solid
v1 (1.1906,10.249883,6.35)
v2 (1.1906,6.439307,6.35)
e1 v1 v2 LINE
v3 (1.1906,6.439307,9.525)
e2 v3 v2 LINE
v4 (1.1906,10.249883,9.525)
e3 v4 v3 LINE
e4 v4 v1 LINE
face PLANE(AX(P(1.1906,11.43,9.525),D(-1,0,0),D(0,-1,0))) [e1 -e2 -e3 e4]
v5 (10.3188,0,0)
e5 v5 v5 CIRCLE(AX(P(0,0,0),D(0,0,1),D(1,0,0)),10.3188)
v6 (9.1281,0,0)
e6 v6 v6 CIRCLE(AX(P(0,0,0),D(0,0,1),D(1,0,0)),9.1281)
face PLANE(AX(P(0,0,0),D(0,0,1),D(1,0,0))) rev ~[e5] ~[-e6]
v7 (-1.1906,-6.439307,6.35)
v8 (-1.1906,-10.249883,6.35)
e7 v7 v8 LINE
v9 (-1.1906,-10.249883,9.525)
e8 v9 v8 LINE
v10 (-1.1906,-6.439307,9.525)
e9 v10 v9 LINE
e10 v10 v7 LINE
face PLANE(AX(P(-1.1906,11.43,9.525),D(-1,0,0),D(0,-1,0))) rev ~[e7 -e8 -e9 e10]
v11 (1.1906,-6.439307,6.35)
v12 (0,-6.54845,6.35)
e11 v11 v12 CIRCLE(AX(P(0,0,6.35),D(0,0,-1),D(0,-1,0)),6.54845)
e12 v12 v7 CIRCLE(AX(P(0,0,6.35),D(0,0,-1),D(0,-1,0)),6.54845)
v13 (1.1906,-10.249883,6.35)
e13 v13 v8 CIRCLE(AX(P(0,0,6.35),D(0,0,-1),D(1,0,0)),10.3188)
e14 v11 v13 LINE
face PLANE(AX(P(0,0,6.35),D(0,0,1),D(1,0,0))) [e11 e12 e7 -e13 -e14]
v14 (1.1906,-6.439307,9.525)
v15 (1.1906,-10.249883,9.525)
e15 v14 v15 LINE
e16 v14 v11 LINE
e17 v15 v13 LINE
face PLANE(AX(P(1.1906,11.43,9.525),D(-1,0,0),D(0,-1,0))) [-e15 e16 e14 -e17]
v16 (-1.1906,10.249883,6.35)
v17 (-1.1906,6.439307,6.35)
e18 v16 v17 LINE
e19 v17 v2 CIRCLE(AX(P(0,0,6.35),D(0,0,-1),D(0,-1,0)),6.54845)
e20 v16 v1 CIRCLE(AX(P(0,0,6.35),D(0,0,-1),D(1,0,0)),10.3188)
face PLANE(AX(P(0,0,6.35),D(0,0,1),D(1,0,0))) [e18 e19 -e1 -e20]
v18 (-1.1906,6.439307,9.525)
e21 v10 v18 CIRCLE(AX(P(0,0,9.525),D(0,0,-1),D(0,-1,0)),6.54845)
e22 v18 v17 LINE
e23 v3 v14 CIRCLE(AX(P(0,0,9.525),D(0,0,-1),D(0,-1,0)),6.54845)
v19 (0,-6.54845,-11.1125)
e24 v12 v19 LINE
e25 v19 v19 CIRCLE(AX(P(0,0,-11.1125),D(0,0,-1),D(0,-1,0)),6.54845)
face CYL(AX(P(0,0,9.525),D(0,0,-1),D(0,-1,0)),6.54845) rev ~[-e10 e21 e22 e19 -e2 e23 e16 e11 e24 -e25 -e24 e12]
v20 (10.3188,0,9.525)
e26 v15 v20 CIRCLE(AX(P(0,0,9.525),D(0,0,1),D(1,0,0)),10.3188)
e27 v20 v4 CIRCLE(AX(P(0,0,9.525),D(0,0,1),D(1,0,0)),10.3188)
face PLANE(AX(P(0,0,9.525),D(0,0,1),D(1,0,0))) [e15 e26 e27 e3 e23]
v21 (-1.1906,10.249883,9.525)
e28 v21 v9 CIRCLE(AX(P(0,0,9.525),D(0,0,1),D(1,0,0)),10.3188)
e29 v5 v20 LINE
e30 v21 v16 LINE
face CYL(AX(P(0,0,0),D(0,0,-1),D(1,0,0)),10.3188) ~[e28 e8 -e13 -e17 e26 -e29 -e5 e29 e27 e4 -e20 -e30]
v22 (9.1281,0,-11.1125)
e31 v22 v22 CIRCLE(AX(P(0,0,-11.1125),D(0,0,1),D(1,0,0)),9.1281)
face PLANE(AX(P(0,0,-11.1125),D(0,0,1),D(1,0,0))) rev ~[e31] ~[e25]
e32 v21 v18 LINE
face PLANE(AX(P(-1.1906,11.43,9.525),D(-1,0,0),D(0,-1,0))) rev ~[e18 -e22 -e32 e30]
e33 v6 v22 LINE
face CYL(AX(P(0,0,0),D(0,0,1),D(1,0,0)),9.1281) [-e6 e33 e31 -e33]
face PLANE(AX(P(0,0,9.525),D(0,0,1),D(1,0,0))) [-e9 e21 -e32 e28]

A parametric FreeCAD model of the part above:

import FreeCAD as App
import Part
import Sketcher

V = App.Vector
Q = App.Units.Quantity

doc = App.newDocument("Part")
body = doc.addObject("PartDesign::Body", "Body")

# Sketch on XY plane
sketch1 = doc.addObject("Sketcher::SketchObject", "Sketch")
body.addObject(sketch1)
sketch1.AttachmentSupport = (doc.XY_Plane, [""])
sketch1.MapMode = "FlatFace"
sketch1.addGeometry(Part.Circle(V(0, 0, 0), V(0, 0, 1), 9.1281), False)
sketch1.addConstraint([
    Sketcher.Constraint("Coincident", 0, 3, -1, 1),
    Sketcher.Constraint("Diameter", 0, Q("0.718748 in")),
])
pad1 = doc.addObject("PartDesign::Pad", "Pad")
body.addObject(pad1)
pad1.Profile = sketch1
pad1.Length = Q("0.4375 in")
pad1.Reversed = True

# Sketch on XY plane
sketch2 = doc.addObject("Sketcher::SketchObject", "Sketch001")
body.addObject(sketch2)
sketch2.AttachmentSupport = (doc.XY_Plane, [""])
sketch2.MapMode = "FlatFace"
sketch2.addGeometry(Part.Circle(V(0, 0, 0), V(0, 0, 1), 10.3188), False)
sketch2.addConstraint([
    Sketcher.Constraint("Coincident", 0, 3, -1, 1),
    Sketcher.Constraint("Diameter", 0, Q("0.8125 in")),
])
pad2 = doc.addObject("PartDesign::Pad", "Pad001")
body.addObject(pad2)
pad2.Profile = sketch2
pad2.Length = Q("0.375 in")

# Sketch on XY plane
sketch3 = doc.addObject("Sketcher::SketchObject", "Sketch002")
body.addObject(sketch3)
sketch3.AttachmentSupport = (doc.XY_Plane, [""])
sketch3.MapMode = "FlatFace"
sketch3.AttachmentOffset = App.Placement(V(0, 0, 0.375 * 25.4), App.Rotation())
sketch3.addGeometry(Part.Circle(V(0, 0, 0), V(0, 0, 1), 6.54845), False)
sketch3.addConstraint([
    Sketcher.Constraint("Coincident", 0, 3, -1, 1),
    Sketcher.Constraint("Diameter", 0, Q("0.5156299 in")),
])
doc.recompute()
hole = doc.addObject("PartDesign::Hole", "Hole")
body.addObject(hole)
hole.Profile = sketch3
hole.ThreadType = "None"
hole.Diameter = Q("0.515626 in")
hole.DepthType = "ThroughAll"

# Sketch on XY plane
sketch4 = doc.addObject("Sketcher::SketchObject", "Sketch003")
body.addObject(sketch4)
sketch4.AttachmentSupport = (doc.XY_Plane, [""])
sketch4.MapMode = "FlatFace"
sketch4.AttachmentOffset = App.Placement(V(0, 0, 0.375 * 25.4), App.Rotation())
sketch4.addGeometry([
    Part.LineSegment(V(1.1906, 11.43, 0), V(-1.1906, 11.43, 0)),
    Part.LineSegment(V(-1.1906, 11.43, 0), V(-1.1906, -11.43, 0)),
    Part.LineSegment(V(-1.1906, -11.43, 0), V(1.1906, -11.43, 0)),
    Part.LineSegment(V(1.1906, -11.43, 0), V(1.1906, 11.43, 0)),
], False)
sketch4.addConstraint([
    Sketcher.Constraint("Coincident", 0, 2, 1, 1),
    Sketcher.Constraint("Coincident", 1, 2, 2, 1),
    Sketcher.Constraint("Coincident", 2, 2, 3, 1),
    Sketcher.Constraint("Coincident", 3, 2, 0, 1),
    Sketcher.Constraint("Horizontal", 0),
    Sketcher.Constraint("Vertical", 1),
    Sketcher.Constraint("Horizontal", 2),
    Sketcher.Constraint("Vertical", 3),
    Sketcher.Constraint("Symmetric", 0, 2, 2, 2, -1, 1),
    Sketcher.Constraint("DistanceY", -1, 1, 0, 2, Q("0.45 in")),
    Sketcher.Constraint("DistanceX", 0, 2, -1, 1, Q("0.046874 in")),
])
pocket1 = doc.addObject("PartDesign::Pocket", "Pocket")
body.addObject(pocket1)
pocket1.Profile = sketch4
pocket1.Length = Q("0.125 in")

doc.recompute()
